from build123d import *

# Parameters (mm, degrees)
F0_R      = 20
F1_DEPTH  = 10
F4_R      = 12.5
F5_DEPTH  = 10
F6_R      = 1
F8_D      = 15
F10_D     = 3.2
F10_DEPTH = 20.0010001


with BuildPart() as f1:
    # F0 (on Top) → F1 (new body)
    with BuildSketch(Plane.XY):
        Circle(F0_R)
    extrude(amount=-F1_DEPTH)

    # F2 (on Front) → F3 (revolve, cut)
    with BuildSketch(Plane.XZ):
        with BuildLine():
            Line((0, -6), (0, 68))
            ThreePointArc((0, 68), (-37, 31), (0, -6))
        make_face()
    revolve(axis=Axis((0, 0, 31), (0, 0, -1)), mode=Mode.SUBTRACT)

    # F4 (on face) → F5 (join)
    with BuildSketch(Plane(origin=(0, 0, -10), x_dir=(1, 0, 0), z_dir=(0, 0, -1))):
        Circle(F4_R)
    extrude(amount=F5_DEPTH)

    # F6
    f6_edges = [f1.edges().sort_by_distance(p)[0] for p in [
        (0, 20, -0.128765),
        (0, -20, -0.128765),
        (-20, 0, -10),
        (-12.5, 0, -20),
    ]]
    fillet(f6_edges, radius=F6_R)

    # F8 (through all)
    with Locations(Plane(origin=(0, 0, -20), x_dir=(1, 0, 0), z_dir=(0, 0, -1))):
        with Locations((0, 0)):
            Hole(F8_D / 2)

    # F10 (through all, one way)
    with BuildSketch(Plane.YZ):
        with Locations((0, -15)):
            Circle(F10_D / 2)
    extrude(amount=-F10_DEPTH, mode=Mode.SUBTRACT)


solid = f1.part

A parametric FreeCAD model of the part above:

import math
import FreeCAD as App
import Part
import Sketcher
Q = App.Units.Quantity


def edges_at(feature, points):
    """Names of the edges that pass closest to the given points."""
    edges = feature.Shape.Edges
    near = lambda p: min(range(len(edges)), key=lambda i: edges[i].distToShape(Part.Vertex(*p))[0])
    return sorted({f"Edge{near(p) + 1}" for p in points})

doc = App.newDocument("Part")
params = doc.addObject("Spreadsheet::Sheet", "Params")
for row, (alias, value) in enumerate([
    ("sketch1_diameter", "40 mm"),
    ("pad1_length", "10 mm"),
    ("sketch2_radius", "37 mm"),
    ("groove_angle", "360 deg"),
    ("sketch3_diameter", "25 mm"),
    ("pad2_length", "10 mm"),
    ("fillet_radius", "1 mm"),
    ("sketch4_diameter", "15 mm"),
    ("hole_diameter", "15 mm"),
    ("sketch5_diameter", "3.2 mm"),
], start=1):
    params.set(f"A{row}", alias)
    params.set(f"B{row}", "=" + value)
    params.setAlias(f"B{row}", alias)

body = doc.addObject("PartDesign::Body", "Body")

# Sketch on XY plane
sketch1 = body.newObject("Sketcher::SketchObject", "Sketch")
sketch1.AttachmentSupport = (doc.getObject("XY_Plane"), [""])
sketch1.MapMode = "FlatFace"
sketch1.addGeometry(Part.Circle(App.Vector(0, 0, 0), App.Vector(0, 0, 1), 20), False)
sketch1.addConstraint([
    Sketcher.Constraint("Coincident", 0, 3, -1, 1),
    Sketcher.Constraint("Diameter", 0, Q("40 mm")),
])
sketch1.setExpression("Constraints[1]", "Params.sketch1_diameter")
pad1 = body.newObject("PartDesign::Pad", "Pad")
pad1.Profile = sketch1
pad1.setExpression("Length", "Params.pad1_length")
pad1.Reversed = True

# Sketch on XZ plane
sketch2 = body.newObject("Sketcher::SketchObject", "Sketch001")
sketch2.AttachmentSupport = (doc.getObject("XZ_Plane"), [""])
sketch2.MapMode = "FlatFace"
sketch2.addGeometry([
    Part.LineSegment(App.Vector(0, -6, 0), App.Vector(0, 68, 0)),
    Part.ArcOfCircle(Part.Circle(App.Vector(0, 31, 0), App.Vector(0, 0, 1), 37), math.radians(90), math.radians(270)),
], False)
sketch2.addConstraint([
    Sketcher.Constraint("Coincident", 0, 1, 1, 2),
    Sketcher.Constraint("Coincident", 1, 1, 0, 2),
    Sketcher.Constraint("Vertical", 0),
    Sketcher.Constraint("PointOnObject", 1, 3, -2),
    Sketcher.Constraint("PointOnObject", 0, 1, -2),
    Sketcher.Constraint("Radius", 1, Q("37 mm")),
    Sketcher.Constraint("DistanceY", -1, 1, 1, 3, Q("31 mm")),
])
sketch2.setExpression("Constraints[5]", "Params.sketch2_radius")
groove = body.newObject("PartDesign::Groove", "Groove")
groove.Profile = sketch2
groove.ReferenceAxis = (sketch2, ["V_Axis"])
groove.setExpression("Angle", "Params.groove_angle")

# Sketch on XY plane
sketch3 = body.newObject("Sketcher::SketchObject", "Sketch002")
sketch3.AttachmentSupport = (doc.getObject("XY_Plane"), [""])
sketch3.MapMode = "FlatFace"
sketch3.AttachmentOffset = App.Placement(App.Vector(0, 0, -10), App.Rotation())
sketch3.addGeometry(Part.Circle(App.Vector(0, 0, 0), App.Vector(0, 0, 1), 12), False)
sketch3.addConstraint([
    Sketcher.Constraint("Coincident", 0, 3, -1, 1),
    Sketcher.Constraint("Diameter", 0, Q("25 mm")),
])
sketch3.setExpression("Constraints[1]", "Params.sketch3_diameter")
pad2 = body.newObject("PartDesign::Pad", "Pad001")
pad2.Profile = sketch3
pad2.setExpression("Length", "Params.pad2_length")
pad2.Reversed = True
doc.recompute()

fillet = body.newObject("PartDesign::Fillet", "Fillet")
fillet.Base = (pad2, edges_at(pad2, [
    (0, 20, -0.129),
    (0, -20, -0.129),
    (-20, 0, -10),
    (-12.5, 0, -20),
]))
fillet.setExpression("Radius", "Params.fillet_radius")

# Sketch on XY plane
sketch4 = body.newObject("Sketcher::SketchObject", "Sketch003")
sketch4.AttachmentSupport = (doc.getObject("XY_Plane"), [""])
sketch4.MapMode = "FlatFace"
sketch4.AttachmentOffset = App.Placement(App.Vector(0, 0, -20), App.Rotation())
sketch4.addGeometry(Part.Circle(App.Vector(0, 0, 0), App.Vector(0, 0, 1), 8), False)
sketch4.addConstraint([
    Sketcher.Constraint("Coincident", 0, 3, -1, 1),
    Sketcher.Constraint("Diameter", 0, Q("15 mm")),
])
sketch4.setExpression("Constraints[1]", "Params.sketch4_diameter")
doc.recompute()
hole = body.newObject("PartDesign::Hole", "Hole")
hole.Profile = sketch4
hole.ThreadType = "None"
hole.setExpression("Diameter", "Params.hole_diameter")
hole.DepthType = "ThroughAll"
hole.Reversed = True

# Sketch on YZ plane
sketch5 = body.newObject("Sketcher::SketchObject", "Sketch004")
sketch5.AttachmentSupport = (doc.getObject("YZ_Plane"), [""])
sketch5.MapMode = "FlatFace"
sketch5.addGeometry(Part.Circle(App.Vector(0, -15, 0), App.Vector(0, 0, 1), 1.6), False)
sketch5.addConstraint([
    Sketcher.Constraint("PointOnObject", 0, 3, -2),
    Sketcher.Constraint("Diameter", 0, Q("3.2 mm")),
    Sketcher.Constraint("DistanceY", 0, 3, -1, 1, Q("15 mm")),
])
sketch5.setExpression("Constraints[1]", "Params.sketch5_diameter")
pocket1 = body.newObject("PartDesign::Pocket", "Pocket")
pocket1.Profile = sketch5
pocket1.Type = "ThroughAll"

doc.recompute()
